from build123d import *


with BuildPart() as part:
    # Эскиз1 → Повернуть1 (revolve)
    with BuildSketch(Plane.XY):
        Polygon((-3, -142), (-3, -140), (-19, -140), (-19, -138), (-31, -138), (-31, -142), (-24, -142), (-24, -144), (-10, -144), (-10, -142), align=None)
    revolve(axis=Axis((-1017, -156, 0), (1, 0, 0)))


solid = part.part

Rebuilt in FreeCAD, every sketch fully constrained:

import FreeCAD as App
import Part
import Sketcher

V = App.Vector


def add_polygon(sketch, points):
    """Adds a closed chain of lines whose ends are joined by coincident constraints."""
    first, n = sketch.GeometryCount, len(points)
    for a, b in zip(points, points[1:] + points[:1]):
        sketch.addGeometry(Part.LineSegment(App.Vector(*a, 0), App.Vector(*b, 0)), False)
    for i in range(n):
        sketch.addConstraint(Sketcher.Constraint("Coincident", first + i, 2, first + (i + 1) % n, 1))

doc = App.newDocument("Part")
body = doc.addObject("PartDesign::Body", "Body")

sketch1 = doc.addObject("Sketcher::SketchObject", "Sketch")
body.addObject(sketch1)
sketch1.AttachmentSupport = (doc.XY_Plane, [""])
sketch1.MapMode = "FlatFace"
add_polygon(sketch1, [(-3, -142), (-3, -140), (-19, -140), (-19, -138), (-31, -138), (-31, -142), (-24, -142), (-24, -144), (-10, -144), (-10, -142)])
sketch1.addGeometry(Part.LineSegment(V(-31, -156, 0), V(-3, -156, 0)), True)
sketch1.addConstraint(Sketcher.Constraint("Vertical", 0))
sketch1.addConstraint(Sketcher.Constraint("Horizontal", 1))
sketch1.addConstraint(Sketcher.Constraint("Vertical", 2))
sketch1.addConstraint(Sketcher.Constraint("Horizontal", 3))
sketch1.addConstraint(Sketcher.Constraint("Vertical", 4))
sketch1.addConstraint(Sketcher.Constraint("Horizontal", 5))
sketch1.addConstraint(Sketcher.Constraint("Vertical", 6))
sketch1.addConstraint(Sketcher.Constraint("Horizontal", 7))
sketch1.addConstraint(Sketcher.Constraint("Vertical", 8))
sketch1.addConstraint(Sketcher.Constraint("Horizontal", 9))
sketch1.addConstraint(Sketcher.Constraint("Horizontal", 10))
sketch1.addConstraint(Sketcher.Constraint("Horizontal", 5, 2, 8, 2))
sketch1.addConstraint(Sketcher.Constraint("Vertical", 4, 2, 10, 1))
sketch1.addConstraint(Sketcher.Constraint("Vertical", 9, 2, 10, 2))
sketch1.addConstraint(Sketcher.Constraint("Equal", 5, 9))
sketch1.addConstraint(Sketcher.Constraint("Equal", 0, 2))
sketch1.addConstraint(Sketcher.Constraint("Equal", 2, 6))
sketch1.addConstraint(Sketcher.Constraint("DistanceX", 1, 2, 1, 1, 16.0))
sketch1.addConstraint(Sketcher.Constraint("DistanceX", 3, 2, 3, 1, 12.0))
sketch1.addConstraint(Sketcher.Constraint("DistanceX", 5, 1, 5, 2, 7.0))
sketch1.addConstraint(Sketcher.Constraint("DistanceY", 0, 1, 0, 2, 2.0))
sketch1.addConstraint(Sketcher.Constraint("DistanceX", 0, 2, -1, 1, 3.0))
sketch1.addConstraint(Sketcher.Constraint("DistanceY", 0, 2, -1, 1, 140.0))
sketch1.addConstraint(Sketcher.Constraint("DistanceY", 10, 1, -1, 1, 156.0))
revolution = doc.addObject("PartDesign::Revolution", "Revolution")
body.addObject(revolution)
revolution.Profile = sketch1
revolution.ReferenceAxis = (sketch1, ["Axis0"])
revolution.Angle = 360

doc.recompute()
